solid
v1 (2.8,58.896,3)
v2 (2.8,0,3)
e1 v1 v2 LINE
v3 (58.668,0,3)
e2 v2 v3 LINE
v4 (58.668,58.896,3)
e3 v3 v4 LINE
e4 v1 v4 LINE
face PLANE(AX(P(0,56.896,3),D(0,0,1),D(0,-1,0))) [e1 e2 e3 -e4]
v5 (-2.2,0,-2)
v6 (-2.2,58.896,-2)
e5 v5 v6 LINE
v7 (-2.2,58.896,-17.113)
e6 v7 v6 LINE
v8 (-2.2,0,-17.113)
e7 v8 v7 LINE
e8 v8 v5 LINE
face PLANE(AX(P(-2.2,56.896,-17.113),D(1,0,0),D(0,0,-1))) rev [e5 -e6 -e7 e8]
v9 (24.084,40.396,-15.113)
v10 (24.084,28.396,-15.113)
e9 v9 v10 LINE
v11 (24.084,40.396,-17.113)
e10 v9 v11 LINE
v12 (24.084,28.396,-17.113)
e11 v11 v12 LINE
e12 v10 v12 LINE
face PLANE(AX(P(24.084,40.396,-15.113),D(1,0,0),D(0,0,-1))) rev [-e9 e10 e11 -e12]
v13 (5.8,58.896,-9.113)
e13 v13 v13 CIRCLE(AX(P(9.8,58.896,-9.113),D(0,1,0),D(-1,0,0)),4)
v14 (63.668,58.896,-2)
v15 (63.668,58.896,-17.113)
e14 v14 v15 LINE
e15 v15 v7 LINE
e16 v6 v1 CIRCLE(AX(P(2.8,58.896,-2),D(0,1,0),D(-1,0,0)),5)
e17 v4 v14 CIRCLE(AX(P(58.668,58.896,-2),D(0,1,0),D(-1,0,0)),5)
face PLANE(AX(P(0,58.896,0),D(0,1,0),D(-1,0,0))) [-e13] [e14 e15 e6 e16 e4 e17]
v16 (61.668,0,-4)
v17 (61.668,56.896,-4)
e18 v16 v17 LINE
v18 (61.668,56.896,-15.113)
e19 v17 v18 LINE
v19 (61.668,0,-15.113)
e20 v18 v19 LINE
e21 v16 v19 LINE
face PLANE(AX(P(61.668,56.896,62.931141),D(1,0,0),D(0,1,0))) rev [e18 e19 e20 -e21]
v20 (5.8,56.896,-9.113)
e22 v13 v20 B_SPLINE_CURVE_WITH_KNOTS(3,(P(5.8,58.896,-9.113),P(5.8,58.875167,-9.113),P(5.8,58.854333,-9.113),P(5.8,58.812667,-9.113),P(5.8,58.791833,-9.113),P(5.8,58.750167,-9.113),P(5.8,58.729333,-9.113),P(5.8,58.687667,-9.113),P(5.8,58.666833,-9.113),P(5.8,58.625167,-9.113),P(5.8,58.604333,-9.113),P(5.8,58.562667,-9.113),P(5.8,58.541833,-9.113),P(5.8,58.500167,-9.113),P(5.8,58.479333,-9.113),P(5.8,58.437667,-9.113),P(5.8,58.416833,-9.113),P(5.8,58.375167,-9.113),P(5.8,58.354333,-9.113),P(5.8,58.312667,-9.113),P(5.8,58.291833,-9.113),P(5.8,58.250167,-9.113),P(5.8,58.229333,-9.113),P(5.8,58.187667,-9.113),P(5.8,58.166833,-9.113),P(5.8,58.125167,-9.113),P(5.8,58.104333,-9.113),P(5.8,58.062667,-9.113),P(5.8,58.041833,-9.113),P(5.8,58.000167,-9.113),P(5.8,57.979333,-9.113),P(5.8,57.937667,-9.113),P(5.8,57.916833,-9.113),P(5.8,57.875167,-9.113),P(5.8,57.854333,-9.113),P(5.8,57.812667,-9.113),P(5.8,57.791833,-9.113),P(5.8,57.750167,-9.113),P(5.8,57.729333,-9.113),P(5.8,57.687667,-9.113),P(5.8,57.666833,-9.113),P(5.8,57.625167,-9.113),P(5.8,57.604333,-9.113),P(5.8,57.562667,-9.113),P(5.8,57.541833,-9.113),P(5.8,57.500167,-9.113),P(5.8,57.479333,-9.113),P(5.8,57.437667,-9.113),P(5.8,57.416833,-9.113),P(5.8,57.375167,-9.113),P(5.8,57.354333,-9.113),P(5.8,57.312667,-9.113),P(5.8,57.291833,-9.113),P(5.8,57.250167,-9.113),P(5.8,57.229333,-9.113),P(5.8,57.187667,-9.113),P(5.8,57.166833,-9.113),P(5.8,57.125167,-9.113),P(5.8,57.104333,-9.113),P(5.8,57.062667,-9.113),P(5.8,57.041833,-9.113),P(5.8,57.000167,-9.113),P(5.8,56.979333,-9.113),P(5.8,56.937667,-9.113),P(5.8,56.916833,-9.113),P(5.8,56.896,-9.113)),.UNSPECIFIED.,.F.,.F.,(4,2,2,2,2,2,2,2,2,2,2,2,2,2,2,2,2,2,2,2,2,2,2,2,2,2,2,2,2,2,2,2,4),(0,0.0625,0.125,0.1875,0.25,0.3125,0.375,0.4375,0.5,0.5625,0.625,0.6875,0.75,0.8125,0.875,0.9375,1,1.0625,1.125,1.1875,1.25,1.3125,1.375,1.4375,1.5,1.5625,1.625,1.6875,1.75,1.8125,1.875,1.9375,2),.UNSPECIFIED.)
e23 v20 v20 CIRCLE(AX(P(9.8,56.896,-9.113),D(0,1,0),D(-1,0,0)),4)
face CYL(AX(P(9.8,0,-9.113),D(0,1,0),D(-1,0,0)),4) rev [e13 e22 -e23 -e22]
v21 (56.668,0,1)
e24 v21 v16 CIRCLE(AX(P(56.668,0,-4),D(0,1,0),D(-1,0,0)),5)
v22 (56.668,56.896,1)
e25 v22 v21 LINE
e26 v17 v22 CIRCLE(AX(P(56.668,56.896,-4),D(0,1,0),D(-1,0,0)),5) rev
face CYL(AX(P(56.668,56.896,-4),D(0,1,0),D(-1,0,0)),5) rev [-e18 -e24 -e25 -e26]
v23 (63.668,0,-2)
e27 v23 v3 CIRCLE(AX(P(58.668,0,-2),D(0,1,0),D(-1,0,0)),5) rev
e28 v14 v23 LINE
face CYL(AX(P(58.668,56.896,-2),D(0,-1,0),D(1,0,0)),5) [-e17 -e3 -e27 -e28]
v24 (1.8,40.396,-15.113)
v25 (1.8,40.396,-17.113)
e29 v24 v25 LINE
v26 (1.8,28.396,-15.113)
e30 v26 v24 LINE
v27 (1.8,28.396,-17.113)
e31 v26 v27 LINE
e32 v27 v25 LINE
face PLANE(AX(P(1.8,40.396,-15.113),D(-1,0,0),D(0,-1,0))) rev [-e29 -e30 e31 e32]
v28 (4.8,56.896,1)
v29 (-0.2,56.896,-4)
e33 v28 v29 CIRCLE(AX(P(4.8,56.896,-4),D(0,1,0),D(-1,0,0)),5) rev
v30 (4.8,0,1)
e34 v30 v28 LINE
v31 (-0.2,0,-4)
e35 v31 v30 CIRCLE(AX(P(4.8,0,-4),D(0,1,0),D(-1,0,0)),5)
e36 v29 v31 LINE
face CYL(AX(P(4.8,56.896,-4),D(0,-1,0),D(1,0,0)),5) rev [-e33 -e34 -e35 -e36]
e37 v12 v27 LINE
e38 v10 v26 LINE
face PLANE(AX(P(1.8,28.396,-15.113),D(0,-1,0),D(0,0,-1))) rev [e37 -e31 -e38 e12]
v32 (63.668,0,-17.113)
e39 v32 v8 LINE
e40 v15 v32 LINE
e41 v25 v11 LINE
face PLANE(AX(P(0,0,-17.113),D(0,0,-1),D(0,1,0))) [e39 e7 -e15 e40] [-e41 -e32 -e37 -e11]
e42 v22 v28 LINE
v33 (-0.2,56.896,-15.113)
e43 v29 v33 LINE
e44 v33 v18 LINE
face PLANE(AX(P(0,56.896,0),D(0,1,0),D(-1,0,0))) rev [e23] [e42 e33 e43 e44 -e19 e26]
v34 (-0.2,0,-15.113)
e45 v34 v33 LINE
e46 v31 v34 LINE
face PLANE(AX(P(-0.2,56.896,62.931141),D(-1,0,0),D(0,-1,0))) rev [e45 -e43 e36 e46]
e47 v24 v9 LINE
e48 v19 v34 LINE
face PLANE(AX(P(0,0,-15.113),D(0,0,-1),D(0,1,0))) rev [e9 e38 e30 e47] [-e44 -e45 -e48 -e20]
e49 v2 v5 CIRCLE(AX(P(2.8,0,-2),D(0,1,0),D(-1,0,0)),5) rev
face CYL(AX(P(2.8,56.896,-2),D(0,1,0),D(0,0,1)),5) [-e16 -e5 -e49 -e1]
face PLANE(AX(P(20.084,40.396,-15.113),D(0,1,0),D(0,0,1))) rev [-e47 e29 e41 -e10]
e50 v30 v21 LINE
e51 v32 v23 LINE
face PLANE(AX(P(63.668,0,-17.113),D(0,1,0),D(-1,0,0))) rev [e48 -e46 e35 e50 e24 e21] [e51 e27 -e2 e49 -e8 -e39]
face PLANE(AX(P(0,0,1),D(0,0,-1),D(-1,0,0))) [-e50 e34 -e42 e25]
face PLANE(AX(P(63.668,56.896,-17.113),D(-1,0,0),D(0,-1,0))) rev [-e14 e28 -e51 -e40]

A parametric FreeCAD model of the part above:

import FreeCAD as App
import Part
import Sketcher

V = App.Vector


def edges_at(feature, points):
    """Names of the edges that pass closest to the given points."""
    edges = feature.Shape.Edges
    near = lambda p: min(range(len(edges)), key=lambda i: edges[i].distToShape(Part.Vertex(*p))[0])
    return sorted({f"Edge{near(p) + 1}" for p in points})

doc = App.newDocument("Part")
params = doc.addObject("Spreadsheet::Sheet", "Params")
for row, (alias, value) in enumerate([
    ("pad1_length", "2 mm"),
    ("sketch2_height", "12 mm"),
    ("sketch3_width", "2 mm"),
    ("pad2_length", "18.113 mm"),
    ("pad3_length", "2 mm"),
    ("pad4_length", "2 mm"),
    ("fillet_radius", "5 mm"),
    ("sketch6_diameter", "8 mm"),
], start=1):
    params.set(f"A{row}", alias)
    params.set(f"B{row}", "=" + value)
    params.setAlias(f"B{row}", alias)

body = doc.addObject("PartDesign::Body", "Body")

# Sketch on XY plane
sketch1 = body.newObject("Sketcher::SketchObject", "Sketch")
sketch1.AttachmentSupport = (doc.getObject("XY_Plane"), [""])
sketch1.MapMode = "FlatFace"
sketch1.AttachmentOffset = App.Placement(V(0, 0, -15.113), App.Rotation())
sketch1.addGeometry([
    Part.LineSegment(V(63.668, 56.896, 0), V(63.668, 0, 0)),
    Part.LineSegment(V(63.668, 0, 0), V(-2.2, 0, 0)),
    Part.LineSegment(V(-2.2, 0, 0), V(-2.2, 56.896, 0)),
    Part.LineSegment(V(-2.2, 56.896, 0), V(63.668, 56.896, 0)),
], False)
sketch1.addConstraint([
    Sketcher.Constraint("Coincident", 0, 2, 1, 1),
    Sketcher.Constraint("Coincident", 1, 2, 2, 1),
    Sketcher.Constraint("Coincident", 2, 2, 3, 1),
    Sketcher.Constraint("Coincident", 3, 2, 0, 1),
    Sketcher.Constraint("Vertical", 0),
    Sketcher.Constraint("Horizontal", 1),
    Sketcher.Constraint("Vertical", 2),
    Sketcher.Constraint("Horizontal", 3),
    Sketcher.Constraint("PointOnObject", 0, 2, -1),
    Sketcher.Constraint("DistanceX", 1, 2, -1, 1, 2.2),
    Sketcher.Constraint("DistanceX", 1, 2, 1, 1, 65.868),
    Sketcher.Constraint("DistanceY", 0, 2, 0, 1, 56.896),
])
pad1 = body.newObject("PartDesign::Pad", "Pad")
pad1.Profile = sketch1
pad1.setExpression("Length", "Params.pad1_length")
pad1.Reversed = True

# Sketch on XY plane
sketch2 = body.newObject("Sketcher::SketchObject", "Sketch001")
sketch2.AttachmentSupport = (doc.getObject("XY_Plane"), [""])
sketch2.MapMode = "FlatFace"
sketch2.AttachmentOffset = App.Placement(V(0, 0, -17.113), App.Rotation())
sketch2.addGeometry([
    Part.LineSegment(V(1.8, 40.396, 0), V(24.084, 40.396, 0)),
    Part.LineSegment(V(24.084, 40.396, 0), V(24.084, 28.396, 0)),
    Part.LineSegment(V(24.084, 28.396, 0), V(1.8, 28.396, 0)),
    Part.LineSegment(V(1.8, 28.396, 0), V(1.8, 40.396, 0)),
], False)
sketch2.addConstraint([
    Sketcher.Constraint("Coincident", 0, 2, 1, 1),
    Sketcher.Constraint("Coincident", 1, 2, 2, 1),
    Sketcher.Constraint("Coincident", 2, 2, 3, 1),
    Sketcher.Constraint("Coincident", 3, 2, 0, 1),
    Sketcher.Constraint("Horizontal", 0),
    Sketcher.Constraint("Vertical", 1),
    Sketcher.Constraint("Horizontal", 2),
    Sketcher.Constraint("Vertical", 3),
    Sketcher.Constraint("DistanceY", 1, 2, 1, 1, 12.0),
    Sketcher.Constraint("DistanceX", -1, 1, 2, 2, 1.8),
    Sketcher.Constraint("DistanceX", 0, 1, 0, 2, 22.284),
    Sketcher.Constraint("DistanceY", -1, 1, 0, 2, 40.396),
])
sketch2.setExpression("Constraints[8]", "Params.sketch2_height")
pocket1 = body.newObject("PartDesign::Pocket", "Pocket")
pocket1.Profile = sketch2
pocket1.Type = "ThroughAll"
pocket1.Midplane = True

# Sketch on XY plane
sketch3 = body.newObject("Sketcher::SketchObject", "Sketch002")
sketch3.AttachmentSupport = (doc.getObject("XY_Plane"), [""])
sketch3.MapMode = "FlatFace"
sketch3.AttachmentOffset = App.Placement(V(0, 0, -15.113), App.Rotation())
sketch3.addGeometry([
    Part.LineSegment(V(-2.2, 56.896, 0), V(-2.2, 0, 0)),  # 0
    Part.LineSegment(V(-2.2, 0, 0), V(-0.2, 0, 0)),  # 1
    Part.LineSegment(V(-0.2, 0, 0), V(-0.2, 56.896, 0)),  # 2
    Part.LineSegment(V(-0.2, 56.896, 0), V(-2.2, 56.896, 0)),  # 3
    Part.LineSegment(V(61.668, 56.896, 0), V(61.668, 0, 0)),  # 4
    Part.LineSegment(V(61.668, 0, 0), V(63.668, 0, 0)),  # 5
    Part.LineSegment(V(63.668, 0, 0), V(63.668, 56.896, 0)),  # 6
    Part.LineSegment(V(63.668, 56.896, 0), V(61.668, 56.896, 0)),  # 7
], False)
sketch3.addConstraint([
    Sketcher.Constraint("Coincident", 0, 2, 1, 1),
    Sketcher.Constraint("Coincident", 1, 2, 2, 1),
    Sketcher.Constraint("Coincident", 2, 2, 3, 1),
    Sketcher.Constraint("Coincident", 3, 2, 0, 1),
    Sketcher.Constraint("Coincident", 4, 2, 5, 1),
    Sketcher.Constraint("Coincident", 5, 2, 6, 1),
    Sketcher.Constraint("Coincident", 6, 2, 7, 1),
    Sketcher.Constraint("Coincident", 7, 2, 4, 1),
    Sketcher.Constraint("Vertical", 0),
    Sketcher.Constraint("Horizontal", 1),
    Sketcher.Constraint("Vertical", 2),
    Sketcher.Constraint("Horizontal", 3),
    Sketcher.Constraint("Vertical", 4),
    Sketcher.Constraint("Horizontal", 5),
    Sketcher.Constraint("Vertical", 6),
    Sketcher.Constraint("Horizontal", 7),
    Sketcher.Constraint("PointOnObject", 0, 2, -1),
    Sketcher.Constraint("PointOnObject", 4, 2, -1),
    Sketcher.Constraint("Horizontal", 3, 2, 6, 2),
    Sketcher.Constraint("Equal", 3, 5),
    Sketcher.Constraint("DistanceX", 1, 1, 1, 2, 2.0),
    Sketcher.Constraint("DistanceX", 0, 2, -1, 1, 2.2),
    Sketcher.Constraint("DistanceY", 0, 2, 0, 1, 56.896),
    Sketcher.Constraint("DistanceX", -1, 1, 4, 2, 61.668),
])
sketch3.setExpression("Constraints[20]", "Params.sketch3_width")
pad2 = body.newObject("PartDesign::Pad", "Pad001")
pad2.Profile = sketch3
pad2.setExpression("Length", "Params.pad2_length")

# Sketch on XY plane
sketch4 = body.newObject("Sketcher::SketchObject", "Sketch003")
sketch4.AttachmentSupport = (doc.getObject("XY_Plane"), [""])
sketch4.MapMode = "FlatFace"
sketch4.AttachmentOffset = App.Placement(V(0, 0, 3), App.Rotation())
sketch4.addGeometry([
    Part.LineSegment(V(-2.2, 56.896, 0), V(-2.2, 0, 0)),
    Part.LineSegment(V(-2.2, 0, 0), V(63.668, 0, 0)),
    Part.LineSegment(V(63.668, 0, 0), V(63.668, 56.896, 0)),
    Part.LineSegment(V(63.668, 56.896, 0), V(-2.2, 56.896, 0)),
], False)
sketch4.addConstraint([
    Sketcher.Constraint("Coincident", 0, 2, 1, 1),
    Sketcher.Constraint("Coincident", 1, 2, 2, 1),
    Sketcher.Constraint("Coincident", 2, 2, 3, 1),
    Sketcher.Constraint("Coincident", 3, 2, 0, 1),
    Sketcher.Constraint("Vertical", 0),
    Sketcher.Constraint("Horizontal", 1),
    Sketcher.Constraint("Vertical", 2),
    Sketcher.Constraint("Horizontal", 3),
    Sketcher.Constraint("PointOnObject", 0, 2, -1),
    Sketcher.Constraint("DistanceX", 0, 2, -1, 1, 2.2),
    Sketcher.Constraint("DistanceX", 1, 1, 1, 2, 65.868),
    Sketcher.Constraint("DistanceY", 0, 2, 0, 1, 56.896),
])
pad3 = body.newObject("PartDesign::Pad", "Pad002")
pad3.Profile = sketch4
pad3.setExpression("Length", "Params.pad3_length")
pad3.Reversed = True

# Sketch on XZ plane
sketch5 = body.newObject("Sketcher::SketchObject", "Sketch004")
sketch5.AttachmentSupport = (doc.getObject("XZ_Plane"), [""])
sketch5.MapMode = "FlatFace"
sketch5.AttachmentOffset = App.Placement(V(0, 0, -56.896), App.Rotation())
sketch5.addGeometry([
    Part.LineSegment(V(-2.2, -17.113, 0), V(-2.2, 3, 0)),
    Part.LineSegment(V(-2.2, 3, 0), V(63.668, 3, 0)),
    Part.LineSegment(V(63.668, 3, 0), V(63.668, -17.113, 0)),
    Part.LineSegment(V(63.668, -17.113, 0), V(-2.2, -17.113, 0)),
], False)
sketch5.addConstraint([
    Sketcher.Constraint("Coincident", 0, 2, 1, 1),
    Sketcher.Constraint("Coincident", 1, 2, 2, 1),
    Sketcher.Constraint("Coincident", 2, 2, 3, 1),
    Sketcher.Constraint("Coincident", 3, 2, 0, 1),
    Sketcher.Constraint("Vertical", 0),
    Sketcher.Constraint("Horizontal", 1),
    Sketcher.Constraint("Vertical", 2),
    Sketcher.Constraint("Horizontal", 3),
    Sketcher.Constraint("DistanceY", -1, 1, 0, 2, 3.0),
    Sketcher.Constraint("DistanceX", 0, 2, -1, 1, 2.2),
    Sketcher.Constraint("DistanceX", 1, 1, 1, 2, 65.868),
    Sketcher.Constraint("DistanceY", 0, 1, 0, 2, 20.113),
])
pad4 = body.newObject("PartDesign::Pad", "Pad003")
pad4.Profile = sketch5
pad4.setExpression("Length", "Params.pad4_length")
pad4.Reversed = True
doc.recompute()

fillet = body.newObject("PartDesign::Fillet", "Fillet")
fillet.Base = (pad4, edges_at(pad4, [
    (-2.2, 29.448, 3),
    (63.668, 29.448, 3),
    (61.668, 28.448, 1),
    (-0.2, 28.448, 1),
]))
fillet.setExpression("Radius", "Params.fillet_radius")

# Sketch on XZ plane
sketch6 = body.newObject("Sketcher::SketchObject", "Sketch005")
sketch6.AttachmentSupport = (doc.getObject("XZ_Plane"), [""])
sketch6.MapMode = "FlatFace"
sketch6.AttachmentOffset = App.Placement(V(0, 0, -58.896), App.Rotation())
sketch6.addGeometry(Part.Circle(V(9.8, -9.113, 0), V(0, 0, 1), 4), False)
sketch6.addConstraint([
    Sketcher.Constraint("Diameter", 0, 8.0),
    Sketcher.Constraint("DistanceX", -1, 1, 0, 3, 9.8),
    Sketcher.Constraint("DistanceY", 0, 3, -1, 1, 9.113),
])
sketch6.setExpression("Constraints[0]", "Params.sketch6_diameter")
pocket2 = body.newObject("PartDesign::Pocket", "Pocket001")
pocket2.Profile = sketch6
pocket2.Type = "ThroughAll"
pocket2.Midplane = True

doc.recompute()
